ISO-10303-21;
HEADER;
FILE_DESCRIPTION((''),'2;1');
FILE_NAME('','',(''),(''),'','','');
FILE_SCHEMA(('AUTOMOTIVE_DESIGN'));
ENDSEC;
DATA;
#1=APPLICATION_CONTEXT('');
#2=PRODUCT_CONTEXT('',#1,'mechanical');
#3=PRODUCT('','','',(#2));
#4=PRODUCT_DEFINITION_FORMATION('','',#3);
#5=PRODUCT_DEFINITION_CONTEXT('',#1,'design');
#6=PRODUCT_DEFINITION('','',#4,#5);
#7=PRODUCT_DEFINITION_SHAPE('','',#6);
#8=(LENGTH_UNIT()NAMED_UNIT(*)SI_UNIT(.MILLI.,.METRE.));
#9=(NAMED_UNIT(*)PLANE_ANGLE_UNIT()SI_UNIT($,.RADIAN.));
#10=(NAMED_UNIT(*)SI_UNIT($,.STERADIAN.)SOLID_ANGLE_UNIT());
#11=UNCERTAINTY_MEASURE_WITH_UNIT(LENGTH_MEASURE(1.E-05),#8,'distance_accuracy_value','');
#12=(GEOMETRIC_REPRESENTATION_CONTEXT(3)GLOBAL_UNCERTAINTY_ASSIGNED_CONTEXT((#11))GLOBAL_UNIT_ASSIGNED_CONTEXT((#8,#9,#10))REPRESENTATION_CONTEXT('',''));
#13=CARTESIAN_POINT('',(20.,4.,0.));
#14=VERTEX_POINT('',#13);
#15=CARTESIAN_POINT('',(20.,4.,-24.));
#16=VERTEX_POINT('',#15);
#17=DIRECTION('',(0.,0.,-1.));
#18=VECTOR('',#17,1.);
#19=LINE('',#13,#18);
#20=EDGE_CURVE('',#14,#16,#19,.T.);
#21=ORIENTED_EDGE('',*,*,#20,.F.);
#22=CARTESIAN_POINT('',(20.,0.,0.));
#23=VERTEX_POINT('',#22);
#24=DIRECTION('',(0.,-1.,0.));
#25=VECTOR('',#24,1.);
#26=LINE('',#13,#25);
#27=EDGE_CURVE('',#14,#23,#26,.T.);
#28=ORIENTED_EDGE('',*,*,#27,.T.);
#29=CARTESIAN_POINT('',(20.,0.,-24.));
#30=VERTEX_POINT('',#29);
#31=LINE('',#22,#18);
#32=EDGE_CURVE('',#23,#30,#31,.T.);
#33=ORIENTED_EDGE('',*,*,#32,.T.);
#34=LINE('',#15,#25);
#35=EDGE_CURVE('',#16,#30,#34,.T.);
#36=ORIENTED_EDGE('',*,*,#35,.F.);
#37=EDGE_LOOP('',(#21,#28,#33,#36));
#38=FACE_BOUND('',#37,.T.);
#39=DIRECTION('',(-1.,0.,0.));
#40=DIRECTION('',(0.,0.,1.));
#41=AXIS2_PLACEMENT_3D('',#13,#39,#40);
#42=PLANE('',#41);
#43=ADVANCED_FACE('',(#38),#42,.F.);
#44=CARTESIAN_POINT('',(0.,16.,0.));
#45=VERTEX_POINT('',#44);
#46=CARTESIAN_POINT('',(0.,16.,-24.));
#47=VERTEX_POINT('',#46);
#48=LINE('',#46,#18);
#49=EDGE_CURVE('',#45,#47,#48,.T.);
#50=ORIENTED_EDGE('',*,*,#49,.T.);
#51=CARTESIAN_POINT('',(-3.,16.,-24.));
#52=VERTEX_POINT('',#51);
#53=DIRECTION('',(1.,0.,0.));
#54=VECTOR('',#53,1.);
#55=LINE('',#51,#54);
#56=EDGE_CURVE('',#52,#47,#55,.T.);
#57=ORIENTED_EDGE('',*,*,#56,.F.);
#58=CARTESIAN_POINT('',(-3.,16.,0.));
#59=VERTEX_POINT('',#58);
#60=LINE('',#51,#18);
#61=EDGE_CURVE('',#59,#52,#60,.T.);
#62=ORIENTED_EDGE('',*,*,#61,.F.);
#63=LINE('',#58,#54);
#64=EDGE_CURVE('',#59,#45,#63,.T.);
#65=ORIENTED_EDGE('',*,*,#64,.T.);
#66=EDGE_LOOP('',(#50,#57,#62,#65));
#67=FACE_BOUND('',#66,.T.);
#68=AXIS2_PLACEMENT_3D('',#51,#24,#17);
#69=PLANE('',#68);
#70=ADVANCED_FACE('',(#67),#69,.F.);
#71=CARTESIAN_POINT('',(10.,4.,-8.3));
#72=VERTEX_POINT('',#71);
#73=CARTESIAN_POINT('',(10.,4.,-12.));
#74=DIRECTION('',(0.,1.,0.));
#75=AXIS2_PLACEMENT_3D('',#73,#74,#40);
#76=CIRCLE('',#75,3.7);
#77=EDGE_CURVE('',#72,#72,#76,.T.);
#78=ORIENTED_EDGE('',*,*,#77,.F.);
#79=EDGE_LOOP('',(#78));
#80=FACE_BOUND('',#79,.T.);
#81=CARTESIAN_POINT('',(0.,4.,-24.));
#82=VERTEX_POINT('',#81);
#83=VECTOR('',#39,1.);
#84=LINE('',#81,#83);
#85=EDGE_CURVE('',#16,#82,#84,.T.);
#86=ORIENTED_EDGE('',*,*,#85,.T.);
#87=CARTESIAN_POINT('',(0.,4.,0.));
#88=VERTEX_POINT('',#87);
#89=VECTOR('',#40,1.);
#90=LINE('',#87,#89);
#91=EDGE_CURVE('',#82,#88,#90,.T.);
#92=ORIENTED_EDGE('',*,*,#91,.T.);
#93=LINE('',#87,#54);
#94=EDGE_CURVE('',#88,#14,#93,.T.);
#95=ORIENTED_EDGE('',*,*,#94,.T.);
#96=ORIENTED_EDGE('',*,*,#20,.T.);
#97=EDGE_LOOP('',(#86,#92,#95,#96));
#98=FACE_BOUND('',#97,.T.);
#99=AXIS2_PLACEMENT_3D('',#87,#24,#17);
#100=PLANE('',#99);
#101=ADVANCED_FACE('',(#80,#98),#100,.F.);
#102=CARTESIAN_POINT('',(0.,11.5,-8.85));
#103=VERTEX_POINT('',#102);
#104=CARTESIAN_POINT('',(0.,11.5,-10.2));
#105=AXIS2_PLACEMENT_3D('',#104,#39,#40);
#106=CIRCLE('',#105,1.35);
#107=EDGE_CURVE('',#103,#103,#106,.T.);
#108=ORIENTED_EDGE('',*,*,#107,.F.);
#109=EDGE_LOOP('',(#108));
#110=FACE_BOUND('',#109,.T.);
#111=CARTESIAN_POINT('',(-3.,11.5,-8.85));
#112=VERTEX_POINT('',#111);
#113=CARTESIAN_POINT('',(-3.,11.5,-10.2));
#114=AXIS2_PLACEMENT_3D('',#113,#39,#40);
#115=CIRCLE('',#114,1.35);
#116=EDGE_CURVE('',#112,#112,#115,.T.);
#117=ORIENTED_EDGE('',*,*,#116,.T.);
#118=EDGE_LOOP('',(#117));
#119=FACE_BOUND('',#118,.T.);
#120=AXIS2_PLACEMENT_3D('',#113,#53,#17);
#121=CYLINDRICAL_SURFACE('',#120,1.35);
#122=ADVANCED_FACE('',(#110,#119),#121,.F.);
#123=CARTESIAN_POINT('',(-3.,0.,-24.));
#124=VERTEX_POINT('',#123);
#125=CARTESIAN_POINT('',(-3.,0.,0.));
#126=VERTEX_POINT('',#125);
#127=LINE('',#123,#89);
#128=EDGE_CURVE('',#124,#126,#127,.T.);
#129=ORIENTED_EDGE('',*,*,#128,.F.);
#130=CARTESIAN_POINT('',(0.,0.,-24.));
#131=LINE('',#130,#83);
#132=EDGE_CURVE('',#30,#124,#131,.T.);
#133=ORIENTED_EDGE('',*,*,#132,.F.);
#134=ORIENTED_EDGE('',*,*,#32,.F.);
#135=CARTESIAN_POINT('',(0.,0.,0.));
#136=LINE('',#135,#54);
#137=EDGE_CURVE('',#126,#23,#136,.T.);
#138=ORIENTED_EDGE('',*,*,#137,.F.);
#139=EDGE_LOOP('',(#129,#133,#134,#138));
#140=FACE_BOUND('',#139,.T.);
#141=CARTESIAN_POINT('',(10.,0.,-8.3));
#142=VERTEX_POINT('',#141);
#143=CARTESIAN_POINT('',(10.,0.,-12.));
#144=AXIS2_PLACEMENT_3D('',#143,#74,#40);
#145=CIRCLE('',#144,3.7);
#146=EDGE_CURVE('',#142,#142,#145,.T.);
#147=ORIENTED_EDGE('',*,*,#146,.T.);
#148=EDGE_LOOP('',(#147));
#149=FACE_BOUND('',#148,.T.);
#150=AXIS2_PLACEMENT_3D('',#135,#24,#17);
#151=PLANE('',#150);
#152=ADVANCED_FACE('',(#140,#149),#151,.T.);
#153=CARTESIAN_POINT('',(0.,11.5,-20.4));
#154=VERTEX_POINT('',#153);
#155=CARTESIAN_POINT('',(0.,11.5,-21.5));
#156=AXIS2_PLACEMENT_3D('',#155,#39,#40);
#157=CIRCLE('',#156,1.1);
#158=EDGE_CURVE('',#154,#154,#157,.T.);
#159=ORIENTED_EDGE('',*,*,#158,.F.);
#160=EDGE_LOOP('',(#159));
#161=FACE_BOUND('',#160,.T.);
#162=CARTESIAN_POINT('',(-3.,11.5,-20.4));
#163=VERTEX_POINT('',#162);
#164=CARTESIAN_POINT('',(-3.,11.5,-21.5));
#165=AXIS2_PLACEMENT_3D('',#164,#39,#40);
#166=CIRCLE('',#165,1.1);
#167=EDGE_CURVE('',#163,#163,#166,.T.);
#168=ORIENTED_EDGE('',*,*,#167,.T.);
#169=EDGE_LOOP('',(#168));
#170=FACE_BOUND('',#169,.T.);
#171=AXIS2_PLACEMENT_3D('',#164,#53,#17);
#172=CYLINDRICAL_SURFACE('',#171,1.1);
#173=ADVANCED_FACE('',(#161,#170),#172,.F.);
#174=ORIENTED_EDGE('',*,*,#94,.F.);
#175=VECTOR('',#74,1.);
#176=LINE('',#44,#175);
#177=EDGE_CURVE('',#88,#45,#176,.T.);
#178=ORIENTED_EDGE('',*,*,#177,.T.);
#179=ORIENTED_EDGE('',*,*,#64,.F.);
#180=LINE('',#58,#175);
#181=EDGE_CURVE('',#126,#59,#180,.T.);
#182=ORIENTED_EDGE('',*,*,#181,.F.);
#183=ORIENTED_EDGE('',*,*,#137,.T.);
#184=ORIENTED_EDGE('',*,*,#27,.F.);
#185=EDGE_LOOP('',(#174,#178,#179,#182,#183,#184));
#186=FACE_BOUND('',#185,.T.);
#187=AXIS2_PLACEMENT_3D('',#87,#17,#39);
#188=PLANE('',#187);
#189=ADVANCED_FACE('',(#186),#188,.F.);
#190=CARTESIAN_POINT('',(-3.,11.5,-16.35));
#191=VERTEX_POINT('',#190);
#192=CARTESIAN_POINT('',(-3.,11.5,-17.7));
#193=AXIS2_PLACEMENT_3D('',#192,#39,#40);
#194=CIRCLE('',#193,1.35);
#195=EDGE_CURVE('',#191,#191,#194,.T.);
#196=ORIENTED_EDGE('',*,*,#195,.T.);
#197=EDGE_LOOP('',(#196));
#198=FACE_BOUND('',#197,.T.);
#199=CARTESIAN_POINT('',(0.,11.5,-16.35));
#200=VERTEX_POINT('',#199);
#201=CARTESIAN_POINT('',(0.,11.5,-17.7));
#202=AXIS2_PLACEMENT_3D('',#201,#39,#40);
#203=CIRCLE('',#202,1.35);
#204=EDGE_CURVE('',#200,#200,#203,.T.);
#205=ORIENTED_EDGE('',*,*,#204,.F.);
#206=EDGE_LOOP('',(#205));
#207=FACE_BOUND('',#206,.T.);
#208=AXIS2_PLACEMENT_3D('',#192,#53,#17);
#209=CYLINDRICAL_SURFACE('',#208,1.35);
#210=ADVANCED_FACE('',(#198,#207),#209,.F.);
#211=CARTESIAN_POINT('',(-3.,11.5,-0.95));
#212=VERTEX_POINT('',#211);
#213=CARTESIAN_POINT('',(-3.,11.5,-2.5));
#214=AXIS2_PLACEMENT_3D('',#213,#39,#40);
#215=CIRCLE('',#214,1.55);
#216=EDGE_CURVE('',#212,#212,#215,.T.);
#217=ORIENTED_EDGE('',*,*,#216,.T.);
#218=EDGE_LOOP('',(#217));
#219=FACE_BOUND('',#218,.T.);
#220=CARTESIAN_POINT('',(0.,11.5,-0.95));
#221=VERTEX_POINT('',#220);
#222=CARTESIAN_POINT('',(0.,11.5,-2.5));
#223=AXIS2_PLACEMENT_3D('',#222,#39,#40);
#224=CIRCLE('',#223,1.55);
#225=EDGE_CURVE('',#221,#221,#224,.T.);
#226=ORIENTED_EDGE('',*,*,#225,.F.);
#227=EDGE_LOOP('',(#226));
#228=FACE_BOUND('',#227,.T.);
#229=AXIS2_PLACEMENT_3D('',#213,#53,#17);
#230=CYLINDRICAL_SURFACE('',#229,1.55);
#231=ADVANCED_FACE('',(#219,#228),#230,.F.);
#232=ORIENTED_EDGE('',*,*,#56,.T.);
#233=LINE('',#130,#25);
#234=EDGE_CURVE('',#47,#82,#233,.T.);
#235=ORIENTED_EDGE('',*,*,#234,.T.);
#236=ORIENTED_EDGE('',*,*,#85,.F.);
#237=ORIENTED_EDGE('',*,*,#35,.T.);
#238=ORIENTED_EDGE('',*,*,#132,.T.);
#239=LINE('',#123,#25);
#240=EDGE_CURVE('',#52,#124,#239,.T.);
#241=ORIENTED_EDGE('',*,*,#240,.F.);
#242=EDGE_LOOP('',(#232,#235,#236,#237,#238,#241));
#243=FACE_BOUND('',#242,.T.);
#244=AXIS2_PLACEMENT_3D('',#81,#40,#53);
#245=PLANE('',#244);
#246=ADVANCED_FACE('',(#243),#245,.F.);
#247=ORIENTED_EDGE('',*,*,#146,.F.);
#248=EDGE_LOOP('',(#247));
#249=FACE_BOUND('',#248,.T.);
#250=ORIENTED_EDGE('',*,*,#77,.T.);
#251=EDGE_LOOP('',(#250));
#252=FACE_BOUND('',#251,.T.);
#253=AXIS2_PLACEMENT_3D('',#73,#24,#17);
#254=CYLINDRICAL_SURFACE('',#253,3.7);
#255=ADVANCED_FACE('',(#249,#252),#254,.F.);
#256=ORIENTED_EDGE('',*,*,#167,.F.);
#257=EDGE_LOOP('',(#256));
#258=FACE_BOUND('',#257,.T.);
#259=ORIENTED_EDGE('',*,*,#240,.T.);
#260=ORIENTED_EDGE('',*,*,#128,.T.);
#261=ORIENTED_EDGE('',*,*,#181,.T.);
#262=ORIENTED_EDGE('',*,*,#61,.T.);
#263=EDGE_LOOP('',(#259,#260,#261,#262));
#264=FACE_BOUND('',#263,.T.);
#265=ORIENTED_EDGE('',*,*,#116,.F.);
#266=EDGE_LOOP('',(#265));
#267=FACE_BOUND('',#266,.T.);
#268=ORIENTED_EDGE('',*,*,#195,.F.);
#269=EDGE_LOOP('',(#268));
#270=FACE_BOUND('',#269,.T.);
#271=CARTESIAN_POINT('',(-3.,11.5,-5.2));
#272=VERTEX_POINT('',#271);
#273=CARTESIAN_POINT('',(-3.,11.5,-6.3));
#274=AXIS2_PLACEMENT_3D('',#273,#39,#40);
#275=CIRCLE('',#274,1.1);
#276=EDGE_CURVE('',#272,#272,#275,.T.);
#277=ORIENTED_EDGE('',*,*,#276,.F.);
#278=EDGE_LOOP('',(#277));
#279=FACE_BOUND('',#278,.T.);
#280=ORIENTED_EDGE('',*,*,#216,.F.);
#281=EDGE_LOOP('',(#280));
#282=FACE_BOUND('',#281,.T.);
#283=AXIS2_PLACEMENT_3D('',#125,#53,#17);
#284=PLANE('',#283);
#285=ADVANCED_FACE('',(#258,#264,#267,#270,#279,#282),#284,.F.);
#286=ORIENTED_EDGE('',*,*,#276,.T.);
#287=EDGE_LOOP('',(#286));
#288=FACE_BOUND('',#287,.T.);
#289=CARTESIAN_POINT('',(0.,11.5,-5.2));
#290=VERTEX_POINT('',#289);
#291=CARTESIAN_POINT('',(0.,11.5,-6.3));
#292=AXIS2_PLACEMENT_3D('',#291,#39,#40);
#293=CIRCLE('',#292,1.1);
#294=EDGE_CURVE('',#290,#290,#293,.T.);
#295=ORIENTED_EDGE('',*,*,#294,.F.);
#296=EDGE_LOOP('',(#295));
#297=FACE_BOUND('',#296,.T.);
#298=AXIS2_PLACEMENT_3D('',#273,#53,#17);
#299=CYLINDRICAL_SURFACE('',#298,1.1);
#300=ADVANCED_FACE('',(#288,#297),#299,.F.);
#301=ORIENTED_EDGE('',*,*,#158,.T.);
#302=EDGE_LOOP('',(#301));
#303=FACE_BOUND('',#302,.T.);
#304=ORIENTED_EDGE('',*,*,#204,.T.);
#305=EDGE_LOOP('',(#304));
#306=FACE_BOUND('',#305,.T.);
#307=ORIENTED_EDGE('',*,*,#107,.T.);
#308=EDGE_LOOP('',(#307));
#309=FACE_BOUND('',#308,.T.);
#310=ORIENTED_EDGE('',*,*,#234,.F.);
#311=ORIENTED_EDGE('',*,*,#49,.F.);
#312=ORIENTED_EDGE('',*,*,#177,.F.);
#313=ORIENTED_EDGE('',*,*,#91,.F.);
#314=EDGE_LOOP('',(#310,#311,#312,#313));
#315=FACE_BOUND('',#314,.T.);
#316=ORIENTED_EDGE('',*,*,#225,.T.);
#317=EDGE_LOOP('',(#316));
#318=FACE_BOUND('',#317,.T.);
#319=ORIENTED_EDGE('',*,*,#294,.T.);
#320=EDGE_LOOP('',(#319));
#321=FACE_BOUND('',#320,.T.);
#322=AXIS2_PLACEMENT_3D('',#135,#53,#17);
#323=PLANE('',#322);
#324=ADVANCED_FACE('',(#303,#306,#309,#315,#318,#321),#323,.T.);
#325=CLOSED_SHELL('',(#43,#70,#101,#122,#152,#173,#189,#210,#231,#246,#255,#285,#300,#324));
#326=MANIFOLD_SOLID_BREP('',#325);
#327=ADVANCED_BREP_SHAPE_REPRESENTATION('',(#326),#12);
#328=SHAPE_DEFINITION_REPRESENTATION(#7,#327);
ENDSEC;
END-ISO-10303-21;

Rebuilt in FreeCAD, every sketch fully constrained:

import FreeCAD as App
import Part
import Sketcher
from FreeCAD import Vector
Q = App.Units.Quantity


def add_polygon(sketch, points):
    """Adds a closed chain of lines whose ends are joined by coincident constraints."""
    first, n = sketch.GeometryCount, len(points)
    for a, b in zip(points, points[1:] + points[:1]):
        sketch.addGeometry(Part.LineSegment(App.Vector(*a, 0), App.Vector(*b, 0)), False)
    for i in range(n):
        sketch.addConstraint(Sketcher.Constraint("Coincident", first + i, 2, first + (i + 1) % n, 1))

doc = App.newDocument("Part")
body = doc.addObject("PartDesign::Body", "Body")

# Sketch on XZ plane
sketch1 = body.newObject("Sketcher::SketchObject", "Sketch")
sketch1.AttachmentSupport = (doc.getObject("XZ_Plane"), [""])
sketch1.MapMode = "FlatFace"
add_polygon(sketch1, [(0, -24), (0, 0), (20, 0), (20, -24)])  # lines 0-3
sketch1.addGeometry(Part.Circle(Vector(10, -12, 0), Vector(0, 0, 1), 3.7), False)  # 4
sketch1.addConstraint(Sketcher.Constraint("Vertical", 0))
sketch1.addConstraint(Sketcher.Constraint("Horizontal", 1))
sketch1.addConstraint(Sketcher.Constraint("Vertical", 2))
sketch1.addConstraint(Sketcher.Constraint("Horizontal", 3))
sketch1.addConstraint(Sketcher.Constraint("Coincident", 0, 2, -1, 1))
sketch1.addConstraint(Sketcher.Constraint("Diameter", 4, Q("7.4 mm")))
sketch1.addConstraint(Sketcher.Constraint("DistanceX", 1, 1, 1, 2, Q("20 mm")))
sketch1.addConstraint(Sketcher.Constraint("DistanceY", 0, 1, 0, 2, Q("24 mm")))
sketch1.addConstraint(Sketcher.Constraint("DistanceX", -1, 1, 4, 3, Q("10 mm")))
sketch1.addConstraint(Sketcher.Constraint("DistanceY", 4, 3, -1, 1, Q("12 mm")))
pad1 = body.newObject("PartDesign::Pad", "Pad")
pad1.Profile = sketch1
pad1.Length = 4
pad1.Reversed = True

# Sketch on YZ plane
sketch2 = body.newObject("Sketcher::SketchObject", "Sketch001")
sketch2.AttachmentSupport = (doc.getObject("YZ_Plane"), [""])
sketch2.MapMode = "FlatFace"
add_polygon(sketch2, [(16, -24), (0, -24), (0, 0), (16, 0)])  # lines 0-3
sketch2.addGeometry(Part.Circle(Vector(11.5, -21.5, 0), Vector(0, 0, 1), 1.1), False)  # 4
sketch2.addGeometry(Part.Circle(Vector(11.5, -17.7, 0), Vector(0, 0, 1), 1.4), False)  # 5
sketch2.addGeometry(Part.Circle(Vector(11.5, -10.2, 0), Vector(0, 0, 1), 1.4), False)  # 6
sketch2.addGeometry(Part.Circle(Vector(11.5, -6.3, 0), Vector(0, 0, 1), 1.1), False)  # 7
sketch2.addGeometry(Part.Circle(Vector(11.5, -2.5, 0), Vector(0, 0, 1), 1.6), False)  # 8
sketch2.addConstraint(Sketcher.Constraint("Horizontal", 0))
sketch2.addConstraint(Sketcher.Constraint("Vertical", 1))
sketch2.addConstraint(Sketcher.Constraint("Horizontal", 2))
sketch2.addConstraint(Sketcher.Constraint("Vertical", 3))
sketch2.addConstraint(Sketcher.Constraint("Coincident", 1, 2, -1, 1))
sketch2.addConstraint(Sketcher.Constraint("Equal", 5, 6))
sketch2.addConstraint(Sketcher.Constraint("Equal", 4, 7))
sketch2.addConstraint(Sketcher.Constraint("Vertical", 4, 3, 5, 3))
sketch2.addConstraint(Sketcher.Constraint("Vertical", 5, 3, 6, 3))
sketch2.addConstraint(Sketcher.Constraint("Vertical", 6, 3, 7, 3))
sketch2.addConstraint(Sketcher.Constraint("Vertical", 7, 3, 8, 3))
sketch2.addConstraint(Sketcher.Constraint("Diameter", 4, Q("2.2 mm")))
sketch2.addConstraint(Sketcher.Constraint("Diameter", 5, Q("2.7 mm")))
sketch2.addConstraint(Sketcher.Constraint("Diameter", 8, Q("3.1 mm")))
sketch2.addConstraint(Sketcher.Constraint("DistanceX", 0, 2, 0, 1, Q("16 mm")))
sketch2.addConstraint(Sketcher.Constraint("DistanceY", 1, 1, 1, 2, Q("24 mm")))
sketch2.addConstraint(Sketcher.Constraint("DistanceY", 4, 3, 8, 3, Q("19 mm")))
sketch2.addConstraint(Sketcher.Constraint("DistanceX", -1, 1, 4, 3, Q("11.5 mm")))
sketch2.addConstraint(Sketcher.Constraint("DistanceY", 4, 3, -1, 1, Q("21.5 mm")))
sketch2.addConstraint(Sketcher.Constraint("DistanceY", 5, 3, -1, 1, Q("17.7 mm")))
sketch2.addConstraint(Sketcher.Constraint("DistanceY", 6, 3, -1, 1, Q("10.2 mm")))
sketch2.addConstraint(Sketcher.Constraint("DistanceY", 7, 3, -1, 1, Q("6.3 mm")))
pad2 = body.newObject("PartDesign::Pad", "Pad001")
pad2.Profile = sketch2
pad2.Length = 3
pad2.Reversed = True

doc.recompute()
